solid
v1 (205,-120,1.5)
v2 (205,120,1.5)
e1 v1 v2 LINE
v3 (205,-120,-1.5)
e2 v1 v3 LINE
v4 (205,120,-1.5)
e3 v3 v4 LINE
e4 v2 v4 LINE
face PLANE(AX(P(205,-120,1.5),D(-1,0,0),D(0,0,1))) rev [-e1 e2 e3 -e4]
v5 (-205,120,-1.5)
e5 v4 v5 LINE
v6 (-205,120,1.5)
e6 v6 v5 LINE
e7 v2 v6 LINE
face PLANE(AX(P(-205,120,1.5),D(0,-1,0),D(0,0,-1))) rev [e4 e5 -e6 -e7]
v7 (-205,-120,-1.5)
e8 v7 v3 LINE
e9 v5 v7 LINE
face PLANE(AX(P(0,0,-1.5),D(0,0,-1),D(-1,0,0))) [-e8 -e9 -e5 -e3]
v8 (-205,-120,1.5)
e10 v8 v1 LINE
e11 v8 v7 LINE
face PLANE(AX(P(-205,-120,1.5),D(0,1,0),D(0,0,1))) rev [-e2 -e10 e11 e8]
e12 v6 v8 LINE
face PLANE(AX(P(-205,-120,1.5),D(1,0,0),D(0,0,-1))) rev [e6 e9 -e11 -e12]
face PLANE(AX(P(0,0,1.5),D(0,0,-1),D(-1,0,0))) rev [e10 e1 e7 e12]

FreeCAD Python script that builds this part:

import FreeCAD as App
import Part
import Sketcher

V = App.Vector

doc = App.newDocument("Part")
body = doc.addObject("PartDesign::Body", "Body")

# Sketch on XY plane
sketch1 = body.newObject("Sketcher::SketchObject", "Sketch")
sketch1.AttachmentSupport = (doc.getObject("XY_Plane"), [""])
sketch1.MapMode = "FlatFace"
sketch1.addGeometry([
    Part.LineSegment(V(-205, 120, 0), V(-205, -120, 0)),
    Part.LineSegment(V(-205, -120, 0), V(205, -120, 0)),
    Part.LineSegment(V(205, -120, 0), V(205, 120, 0)),
    Part.LineSegment(V(205, 120, 0), V(-205, 120, 0)),
], False)
sketch1.addConstraint([
    Sketcher.Constraint("Coincident", 0, 2, 1, 1),
    Sketcher.Constraint("Coincident", 1, 2, 2, 1),
    Sketcher.Constraint("Coincident", 2, 2, 3, 1),
    Sketcher.Constraint("Coincident", 3, 2, 0, 1),
    Sketcher.Constraint("Vertical", 0),
    Sketcher.Constraint("Horizontal", 1),
    Sketcher.Constraint("Vertical", 2),
    Sketcher.Constraint("Horizontal", 3),
    Sketcher.Constraint("Symmetric", 0, 2, 2, 2, -1, 1),
    Sketcher.Constraint("DistanceX", 1, 1, 1, 2, 410.0),
    Sketcher.Constraint("DistanceY", 0, 2, 0, 1, 240.0),
])
pad1 = body.newObject("PartDesign::Pad", "Pad")
pad1.Profile = sketch1
pad1.Length = 3
pad1.Midplane = True

doc.recompute()
